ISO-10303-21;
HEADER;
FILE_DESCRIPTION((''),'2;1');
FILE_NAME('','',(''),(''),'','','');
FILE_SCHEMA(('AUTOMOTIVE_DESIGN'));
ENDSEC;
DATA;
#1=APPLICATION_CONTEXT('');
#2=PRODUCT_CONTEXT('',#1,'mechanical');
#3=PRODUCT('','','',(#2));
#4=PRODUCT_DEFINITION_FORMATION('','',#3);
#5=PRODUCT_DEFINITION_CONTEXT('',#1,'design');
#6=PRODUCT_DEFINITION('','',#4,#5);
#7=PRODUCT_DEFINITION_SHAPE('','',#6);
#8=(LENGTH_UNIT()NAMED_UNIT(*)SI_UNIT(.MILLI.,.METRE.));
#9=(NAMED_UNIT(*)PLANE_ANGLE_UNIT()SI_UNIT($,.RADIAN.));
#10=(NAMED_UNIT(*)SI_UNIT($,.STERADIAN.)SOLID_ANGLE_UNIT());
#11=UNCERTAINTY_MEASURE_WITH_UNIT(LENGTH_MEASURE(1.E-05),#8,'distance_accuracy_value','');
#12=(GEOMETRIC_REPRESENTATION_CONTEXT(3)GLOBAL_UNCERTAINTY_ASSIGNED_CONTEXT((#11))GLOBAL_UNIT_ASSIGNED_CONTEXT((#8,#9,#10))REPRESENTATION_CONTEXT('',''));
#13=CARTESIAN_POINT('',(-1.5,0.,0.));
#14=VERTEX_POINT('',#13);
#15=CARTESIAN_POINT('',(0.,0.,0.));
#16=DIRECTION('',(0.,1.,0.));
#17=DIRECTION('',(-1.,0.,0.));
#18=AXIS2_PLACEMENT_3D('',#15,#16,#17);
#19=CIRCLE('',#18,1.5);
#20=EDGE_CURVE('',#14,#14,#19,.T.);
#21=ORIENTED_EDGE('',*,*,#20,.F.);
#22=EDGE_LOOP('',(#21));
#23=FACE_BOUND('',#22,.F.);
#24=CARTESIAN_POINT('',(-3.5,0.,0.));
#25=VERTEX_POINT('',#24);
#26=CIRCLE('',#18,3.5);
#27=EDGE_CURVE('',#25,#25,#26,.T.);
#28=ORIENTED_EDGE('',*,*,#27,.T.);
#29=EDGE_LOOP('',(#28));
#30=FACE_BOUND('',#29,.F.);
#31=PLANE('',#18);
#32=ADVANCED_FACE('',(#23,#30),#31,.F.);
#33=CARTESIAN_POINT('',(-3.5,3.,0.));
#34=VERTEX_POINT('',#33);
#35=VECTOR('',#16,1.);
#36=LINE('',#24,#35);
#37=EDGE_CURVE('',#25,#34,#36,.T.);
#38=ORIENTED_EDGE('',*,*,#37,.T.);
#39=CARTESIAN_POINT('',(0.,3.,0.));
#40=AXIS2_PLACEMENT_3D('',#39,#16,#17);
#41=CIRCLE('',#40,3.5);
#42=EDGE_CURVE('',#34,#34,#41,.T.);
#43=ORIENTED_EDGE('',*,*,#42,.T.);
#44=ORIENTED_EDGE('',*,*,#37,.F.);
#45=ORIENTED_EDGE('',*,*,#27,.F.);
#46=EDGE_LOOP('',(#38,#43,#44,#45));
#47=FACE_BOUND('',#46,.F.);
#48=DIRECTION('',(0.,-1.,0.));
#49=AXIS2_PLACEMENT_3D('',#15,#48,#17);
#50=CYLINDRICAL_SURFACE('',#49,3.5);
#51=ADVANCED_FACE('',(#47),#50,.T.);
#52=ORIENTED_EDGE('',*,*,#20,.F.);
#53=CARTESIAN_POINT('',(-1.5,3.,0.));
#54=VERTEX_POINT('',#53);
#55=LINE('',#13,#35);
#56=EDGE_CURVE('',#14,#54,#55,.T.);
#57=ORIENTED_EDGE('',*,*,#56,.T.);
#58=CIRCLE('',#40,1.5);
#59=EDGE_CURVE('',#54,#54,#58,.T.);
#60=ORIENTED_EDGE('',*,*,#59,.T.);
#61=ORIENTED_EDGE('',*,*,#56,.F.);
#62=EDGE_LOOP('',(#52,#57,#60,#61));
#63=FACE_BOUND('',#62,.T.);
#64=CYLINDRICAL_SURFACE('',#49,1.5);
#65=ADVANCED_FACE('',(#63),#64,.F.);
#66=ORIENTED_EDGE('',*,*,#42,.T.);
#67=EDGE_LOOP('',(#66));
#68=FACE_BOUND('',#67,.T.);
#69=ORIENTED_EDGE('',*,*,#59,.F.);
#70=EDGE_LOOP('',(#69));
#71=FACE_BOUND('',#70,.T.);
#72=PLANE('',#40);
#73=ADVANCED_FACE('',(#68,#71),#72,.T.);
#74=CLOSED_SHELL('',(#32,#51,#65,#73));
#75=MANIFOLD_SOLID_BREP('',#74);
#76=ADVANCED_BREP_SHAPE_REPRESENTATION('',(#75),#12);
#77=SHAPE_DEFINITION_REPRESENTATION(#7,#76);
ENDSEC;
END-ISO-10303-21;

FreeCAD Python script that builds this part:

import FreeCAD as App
import Part
import Sketcher

V = App.Vector

doc = App.newDocument("Part")
params = doc.addObject("Spreadsheet::Sheet", "Params")
for row, (alias, value) in enumerate([
    ("sketch1_diameter", "7 mm"),
    ("sketch1_diameter2", "3 mm"),
    ("pad1_length", "3 mm"),
], start=1):
    params.set(f"A{row}", alias)
    params.set(f"B{row}", "=" + value)
    params.setAlias(f"B{row}", alias)

body = doc.addObject("PartDesign::Body", "Body")

sketch1 = body.newObject("Sketcher::SketchObject", "Sketch")
sketch1.AttachmentSupport = (doc.getObject("XZ_Plane"), [""])
sketch1.MapMode = "FlatFace"
sketch1.addGeometry([
    Part.Circle(V(0, 0, 0), V(0, 0, 1), 3.5),
    Part.Circle(V(0, 0, 0), V(0, 0, 1), 1.5),
], False)
sketch1.addConstraint([
    Sketcher.Constraint("Coincident", 0, 3, -1, 1),
    Sketcher.Constraint("Coincident", 1, 3, -1, 1),
    Sketcher.Constraint("Diameter", 0, 7.0),
    Sketcher.Constraint("Diameter", 1, 3.0),
])
sketch1.setExpression("Constraints[2]", "Params.sketch1_diameter")
sketch1.setExpression("Constraints[3]", "Params.sketch1_diameter2")
pad1 = body.newObject("PartDesign::Pad", "Pad")
pad1.Profile = sketch1
pad1.setExpression("Length", "Params.pad1_length")
pad1.Reversed = True

doc.recompute()
